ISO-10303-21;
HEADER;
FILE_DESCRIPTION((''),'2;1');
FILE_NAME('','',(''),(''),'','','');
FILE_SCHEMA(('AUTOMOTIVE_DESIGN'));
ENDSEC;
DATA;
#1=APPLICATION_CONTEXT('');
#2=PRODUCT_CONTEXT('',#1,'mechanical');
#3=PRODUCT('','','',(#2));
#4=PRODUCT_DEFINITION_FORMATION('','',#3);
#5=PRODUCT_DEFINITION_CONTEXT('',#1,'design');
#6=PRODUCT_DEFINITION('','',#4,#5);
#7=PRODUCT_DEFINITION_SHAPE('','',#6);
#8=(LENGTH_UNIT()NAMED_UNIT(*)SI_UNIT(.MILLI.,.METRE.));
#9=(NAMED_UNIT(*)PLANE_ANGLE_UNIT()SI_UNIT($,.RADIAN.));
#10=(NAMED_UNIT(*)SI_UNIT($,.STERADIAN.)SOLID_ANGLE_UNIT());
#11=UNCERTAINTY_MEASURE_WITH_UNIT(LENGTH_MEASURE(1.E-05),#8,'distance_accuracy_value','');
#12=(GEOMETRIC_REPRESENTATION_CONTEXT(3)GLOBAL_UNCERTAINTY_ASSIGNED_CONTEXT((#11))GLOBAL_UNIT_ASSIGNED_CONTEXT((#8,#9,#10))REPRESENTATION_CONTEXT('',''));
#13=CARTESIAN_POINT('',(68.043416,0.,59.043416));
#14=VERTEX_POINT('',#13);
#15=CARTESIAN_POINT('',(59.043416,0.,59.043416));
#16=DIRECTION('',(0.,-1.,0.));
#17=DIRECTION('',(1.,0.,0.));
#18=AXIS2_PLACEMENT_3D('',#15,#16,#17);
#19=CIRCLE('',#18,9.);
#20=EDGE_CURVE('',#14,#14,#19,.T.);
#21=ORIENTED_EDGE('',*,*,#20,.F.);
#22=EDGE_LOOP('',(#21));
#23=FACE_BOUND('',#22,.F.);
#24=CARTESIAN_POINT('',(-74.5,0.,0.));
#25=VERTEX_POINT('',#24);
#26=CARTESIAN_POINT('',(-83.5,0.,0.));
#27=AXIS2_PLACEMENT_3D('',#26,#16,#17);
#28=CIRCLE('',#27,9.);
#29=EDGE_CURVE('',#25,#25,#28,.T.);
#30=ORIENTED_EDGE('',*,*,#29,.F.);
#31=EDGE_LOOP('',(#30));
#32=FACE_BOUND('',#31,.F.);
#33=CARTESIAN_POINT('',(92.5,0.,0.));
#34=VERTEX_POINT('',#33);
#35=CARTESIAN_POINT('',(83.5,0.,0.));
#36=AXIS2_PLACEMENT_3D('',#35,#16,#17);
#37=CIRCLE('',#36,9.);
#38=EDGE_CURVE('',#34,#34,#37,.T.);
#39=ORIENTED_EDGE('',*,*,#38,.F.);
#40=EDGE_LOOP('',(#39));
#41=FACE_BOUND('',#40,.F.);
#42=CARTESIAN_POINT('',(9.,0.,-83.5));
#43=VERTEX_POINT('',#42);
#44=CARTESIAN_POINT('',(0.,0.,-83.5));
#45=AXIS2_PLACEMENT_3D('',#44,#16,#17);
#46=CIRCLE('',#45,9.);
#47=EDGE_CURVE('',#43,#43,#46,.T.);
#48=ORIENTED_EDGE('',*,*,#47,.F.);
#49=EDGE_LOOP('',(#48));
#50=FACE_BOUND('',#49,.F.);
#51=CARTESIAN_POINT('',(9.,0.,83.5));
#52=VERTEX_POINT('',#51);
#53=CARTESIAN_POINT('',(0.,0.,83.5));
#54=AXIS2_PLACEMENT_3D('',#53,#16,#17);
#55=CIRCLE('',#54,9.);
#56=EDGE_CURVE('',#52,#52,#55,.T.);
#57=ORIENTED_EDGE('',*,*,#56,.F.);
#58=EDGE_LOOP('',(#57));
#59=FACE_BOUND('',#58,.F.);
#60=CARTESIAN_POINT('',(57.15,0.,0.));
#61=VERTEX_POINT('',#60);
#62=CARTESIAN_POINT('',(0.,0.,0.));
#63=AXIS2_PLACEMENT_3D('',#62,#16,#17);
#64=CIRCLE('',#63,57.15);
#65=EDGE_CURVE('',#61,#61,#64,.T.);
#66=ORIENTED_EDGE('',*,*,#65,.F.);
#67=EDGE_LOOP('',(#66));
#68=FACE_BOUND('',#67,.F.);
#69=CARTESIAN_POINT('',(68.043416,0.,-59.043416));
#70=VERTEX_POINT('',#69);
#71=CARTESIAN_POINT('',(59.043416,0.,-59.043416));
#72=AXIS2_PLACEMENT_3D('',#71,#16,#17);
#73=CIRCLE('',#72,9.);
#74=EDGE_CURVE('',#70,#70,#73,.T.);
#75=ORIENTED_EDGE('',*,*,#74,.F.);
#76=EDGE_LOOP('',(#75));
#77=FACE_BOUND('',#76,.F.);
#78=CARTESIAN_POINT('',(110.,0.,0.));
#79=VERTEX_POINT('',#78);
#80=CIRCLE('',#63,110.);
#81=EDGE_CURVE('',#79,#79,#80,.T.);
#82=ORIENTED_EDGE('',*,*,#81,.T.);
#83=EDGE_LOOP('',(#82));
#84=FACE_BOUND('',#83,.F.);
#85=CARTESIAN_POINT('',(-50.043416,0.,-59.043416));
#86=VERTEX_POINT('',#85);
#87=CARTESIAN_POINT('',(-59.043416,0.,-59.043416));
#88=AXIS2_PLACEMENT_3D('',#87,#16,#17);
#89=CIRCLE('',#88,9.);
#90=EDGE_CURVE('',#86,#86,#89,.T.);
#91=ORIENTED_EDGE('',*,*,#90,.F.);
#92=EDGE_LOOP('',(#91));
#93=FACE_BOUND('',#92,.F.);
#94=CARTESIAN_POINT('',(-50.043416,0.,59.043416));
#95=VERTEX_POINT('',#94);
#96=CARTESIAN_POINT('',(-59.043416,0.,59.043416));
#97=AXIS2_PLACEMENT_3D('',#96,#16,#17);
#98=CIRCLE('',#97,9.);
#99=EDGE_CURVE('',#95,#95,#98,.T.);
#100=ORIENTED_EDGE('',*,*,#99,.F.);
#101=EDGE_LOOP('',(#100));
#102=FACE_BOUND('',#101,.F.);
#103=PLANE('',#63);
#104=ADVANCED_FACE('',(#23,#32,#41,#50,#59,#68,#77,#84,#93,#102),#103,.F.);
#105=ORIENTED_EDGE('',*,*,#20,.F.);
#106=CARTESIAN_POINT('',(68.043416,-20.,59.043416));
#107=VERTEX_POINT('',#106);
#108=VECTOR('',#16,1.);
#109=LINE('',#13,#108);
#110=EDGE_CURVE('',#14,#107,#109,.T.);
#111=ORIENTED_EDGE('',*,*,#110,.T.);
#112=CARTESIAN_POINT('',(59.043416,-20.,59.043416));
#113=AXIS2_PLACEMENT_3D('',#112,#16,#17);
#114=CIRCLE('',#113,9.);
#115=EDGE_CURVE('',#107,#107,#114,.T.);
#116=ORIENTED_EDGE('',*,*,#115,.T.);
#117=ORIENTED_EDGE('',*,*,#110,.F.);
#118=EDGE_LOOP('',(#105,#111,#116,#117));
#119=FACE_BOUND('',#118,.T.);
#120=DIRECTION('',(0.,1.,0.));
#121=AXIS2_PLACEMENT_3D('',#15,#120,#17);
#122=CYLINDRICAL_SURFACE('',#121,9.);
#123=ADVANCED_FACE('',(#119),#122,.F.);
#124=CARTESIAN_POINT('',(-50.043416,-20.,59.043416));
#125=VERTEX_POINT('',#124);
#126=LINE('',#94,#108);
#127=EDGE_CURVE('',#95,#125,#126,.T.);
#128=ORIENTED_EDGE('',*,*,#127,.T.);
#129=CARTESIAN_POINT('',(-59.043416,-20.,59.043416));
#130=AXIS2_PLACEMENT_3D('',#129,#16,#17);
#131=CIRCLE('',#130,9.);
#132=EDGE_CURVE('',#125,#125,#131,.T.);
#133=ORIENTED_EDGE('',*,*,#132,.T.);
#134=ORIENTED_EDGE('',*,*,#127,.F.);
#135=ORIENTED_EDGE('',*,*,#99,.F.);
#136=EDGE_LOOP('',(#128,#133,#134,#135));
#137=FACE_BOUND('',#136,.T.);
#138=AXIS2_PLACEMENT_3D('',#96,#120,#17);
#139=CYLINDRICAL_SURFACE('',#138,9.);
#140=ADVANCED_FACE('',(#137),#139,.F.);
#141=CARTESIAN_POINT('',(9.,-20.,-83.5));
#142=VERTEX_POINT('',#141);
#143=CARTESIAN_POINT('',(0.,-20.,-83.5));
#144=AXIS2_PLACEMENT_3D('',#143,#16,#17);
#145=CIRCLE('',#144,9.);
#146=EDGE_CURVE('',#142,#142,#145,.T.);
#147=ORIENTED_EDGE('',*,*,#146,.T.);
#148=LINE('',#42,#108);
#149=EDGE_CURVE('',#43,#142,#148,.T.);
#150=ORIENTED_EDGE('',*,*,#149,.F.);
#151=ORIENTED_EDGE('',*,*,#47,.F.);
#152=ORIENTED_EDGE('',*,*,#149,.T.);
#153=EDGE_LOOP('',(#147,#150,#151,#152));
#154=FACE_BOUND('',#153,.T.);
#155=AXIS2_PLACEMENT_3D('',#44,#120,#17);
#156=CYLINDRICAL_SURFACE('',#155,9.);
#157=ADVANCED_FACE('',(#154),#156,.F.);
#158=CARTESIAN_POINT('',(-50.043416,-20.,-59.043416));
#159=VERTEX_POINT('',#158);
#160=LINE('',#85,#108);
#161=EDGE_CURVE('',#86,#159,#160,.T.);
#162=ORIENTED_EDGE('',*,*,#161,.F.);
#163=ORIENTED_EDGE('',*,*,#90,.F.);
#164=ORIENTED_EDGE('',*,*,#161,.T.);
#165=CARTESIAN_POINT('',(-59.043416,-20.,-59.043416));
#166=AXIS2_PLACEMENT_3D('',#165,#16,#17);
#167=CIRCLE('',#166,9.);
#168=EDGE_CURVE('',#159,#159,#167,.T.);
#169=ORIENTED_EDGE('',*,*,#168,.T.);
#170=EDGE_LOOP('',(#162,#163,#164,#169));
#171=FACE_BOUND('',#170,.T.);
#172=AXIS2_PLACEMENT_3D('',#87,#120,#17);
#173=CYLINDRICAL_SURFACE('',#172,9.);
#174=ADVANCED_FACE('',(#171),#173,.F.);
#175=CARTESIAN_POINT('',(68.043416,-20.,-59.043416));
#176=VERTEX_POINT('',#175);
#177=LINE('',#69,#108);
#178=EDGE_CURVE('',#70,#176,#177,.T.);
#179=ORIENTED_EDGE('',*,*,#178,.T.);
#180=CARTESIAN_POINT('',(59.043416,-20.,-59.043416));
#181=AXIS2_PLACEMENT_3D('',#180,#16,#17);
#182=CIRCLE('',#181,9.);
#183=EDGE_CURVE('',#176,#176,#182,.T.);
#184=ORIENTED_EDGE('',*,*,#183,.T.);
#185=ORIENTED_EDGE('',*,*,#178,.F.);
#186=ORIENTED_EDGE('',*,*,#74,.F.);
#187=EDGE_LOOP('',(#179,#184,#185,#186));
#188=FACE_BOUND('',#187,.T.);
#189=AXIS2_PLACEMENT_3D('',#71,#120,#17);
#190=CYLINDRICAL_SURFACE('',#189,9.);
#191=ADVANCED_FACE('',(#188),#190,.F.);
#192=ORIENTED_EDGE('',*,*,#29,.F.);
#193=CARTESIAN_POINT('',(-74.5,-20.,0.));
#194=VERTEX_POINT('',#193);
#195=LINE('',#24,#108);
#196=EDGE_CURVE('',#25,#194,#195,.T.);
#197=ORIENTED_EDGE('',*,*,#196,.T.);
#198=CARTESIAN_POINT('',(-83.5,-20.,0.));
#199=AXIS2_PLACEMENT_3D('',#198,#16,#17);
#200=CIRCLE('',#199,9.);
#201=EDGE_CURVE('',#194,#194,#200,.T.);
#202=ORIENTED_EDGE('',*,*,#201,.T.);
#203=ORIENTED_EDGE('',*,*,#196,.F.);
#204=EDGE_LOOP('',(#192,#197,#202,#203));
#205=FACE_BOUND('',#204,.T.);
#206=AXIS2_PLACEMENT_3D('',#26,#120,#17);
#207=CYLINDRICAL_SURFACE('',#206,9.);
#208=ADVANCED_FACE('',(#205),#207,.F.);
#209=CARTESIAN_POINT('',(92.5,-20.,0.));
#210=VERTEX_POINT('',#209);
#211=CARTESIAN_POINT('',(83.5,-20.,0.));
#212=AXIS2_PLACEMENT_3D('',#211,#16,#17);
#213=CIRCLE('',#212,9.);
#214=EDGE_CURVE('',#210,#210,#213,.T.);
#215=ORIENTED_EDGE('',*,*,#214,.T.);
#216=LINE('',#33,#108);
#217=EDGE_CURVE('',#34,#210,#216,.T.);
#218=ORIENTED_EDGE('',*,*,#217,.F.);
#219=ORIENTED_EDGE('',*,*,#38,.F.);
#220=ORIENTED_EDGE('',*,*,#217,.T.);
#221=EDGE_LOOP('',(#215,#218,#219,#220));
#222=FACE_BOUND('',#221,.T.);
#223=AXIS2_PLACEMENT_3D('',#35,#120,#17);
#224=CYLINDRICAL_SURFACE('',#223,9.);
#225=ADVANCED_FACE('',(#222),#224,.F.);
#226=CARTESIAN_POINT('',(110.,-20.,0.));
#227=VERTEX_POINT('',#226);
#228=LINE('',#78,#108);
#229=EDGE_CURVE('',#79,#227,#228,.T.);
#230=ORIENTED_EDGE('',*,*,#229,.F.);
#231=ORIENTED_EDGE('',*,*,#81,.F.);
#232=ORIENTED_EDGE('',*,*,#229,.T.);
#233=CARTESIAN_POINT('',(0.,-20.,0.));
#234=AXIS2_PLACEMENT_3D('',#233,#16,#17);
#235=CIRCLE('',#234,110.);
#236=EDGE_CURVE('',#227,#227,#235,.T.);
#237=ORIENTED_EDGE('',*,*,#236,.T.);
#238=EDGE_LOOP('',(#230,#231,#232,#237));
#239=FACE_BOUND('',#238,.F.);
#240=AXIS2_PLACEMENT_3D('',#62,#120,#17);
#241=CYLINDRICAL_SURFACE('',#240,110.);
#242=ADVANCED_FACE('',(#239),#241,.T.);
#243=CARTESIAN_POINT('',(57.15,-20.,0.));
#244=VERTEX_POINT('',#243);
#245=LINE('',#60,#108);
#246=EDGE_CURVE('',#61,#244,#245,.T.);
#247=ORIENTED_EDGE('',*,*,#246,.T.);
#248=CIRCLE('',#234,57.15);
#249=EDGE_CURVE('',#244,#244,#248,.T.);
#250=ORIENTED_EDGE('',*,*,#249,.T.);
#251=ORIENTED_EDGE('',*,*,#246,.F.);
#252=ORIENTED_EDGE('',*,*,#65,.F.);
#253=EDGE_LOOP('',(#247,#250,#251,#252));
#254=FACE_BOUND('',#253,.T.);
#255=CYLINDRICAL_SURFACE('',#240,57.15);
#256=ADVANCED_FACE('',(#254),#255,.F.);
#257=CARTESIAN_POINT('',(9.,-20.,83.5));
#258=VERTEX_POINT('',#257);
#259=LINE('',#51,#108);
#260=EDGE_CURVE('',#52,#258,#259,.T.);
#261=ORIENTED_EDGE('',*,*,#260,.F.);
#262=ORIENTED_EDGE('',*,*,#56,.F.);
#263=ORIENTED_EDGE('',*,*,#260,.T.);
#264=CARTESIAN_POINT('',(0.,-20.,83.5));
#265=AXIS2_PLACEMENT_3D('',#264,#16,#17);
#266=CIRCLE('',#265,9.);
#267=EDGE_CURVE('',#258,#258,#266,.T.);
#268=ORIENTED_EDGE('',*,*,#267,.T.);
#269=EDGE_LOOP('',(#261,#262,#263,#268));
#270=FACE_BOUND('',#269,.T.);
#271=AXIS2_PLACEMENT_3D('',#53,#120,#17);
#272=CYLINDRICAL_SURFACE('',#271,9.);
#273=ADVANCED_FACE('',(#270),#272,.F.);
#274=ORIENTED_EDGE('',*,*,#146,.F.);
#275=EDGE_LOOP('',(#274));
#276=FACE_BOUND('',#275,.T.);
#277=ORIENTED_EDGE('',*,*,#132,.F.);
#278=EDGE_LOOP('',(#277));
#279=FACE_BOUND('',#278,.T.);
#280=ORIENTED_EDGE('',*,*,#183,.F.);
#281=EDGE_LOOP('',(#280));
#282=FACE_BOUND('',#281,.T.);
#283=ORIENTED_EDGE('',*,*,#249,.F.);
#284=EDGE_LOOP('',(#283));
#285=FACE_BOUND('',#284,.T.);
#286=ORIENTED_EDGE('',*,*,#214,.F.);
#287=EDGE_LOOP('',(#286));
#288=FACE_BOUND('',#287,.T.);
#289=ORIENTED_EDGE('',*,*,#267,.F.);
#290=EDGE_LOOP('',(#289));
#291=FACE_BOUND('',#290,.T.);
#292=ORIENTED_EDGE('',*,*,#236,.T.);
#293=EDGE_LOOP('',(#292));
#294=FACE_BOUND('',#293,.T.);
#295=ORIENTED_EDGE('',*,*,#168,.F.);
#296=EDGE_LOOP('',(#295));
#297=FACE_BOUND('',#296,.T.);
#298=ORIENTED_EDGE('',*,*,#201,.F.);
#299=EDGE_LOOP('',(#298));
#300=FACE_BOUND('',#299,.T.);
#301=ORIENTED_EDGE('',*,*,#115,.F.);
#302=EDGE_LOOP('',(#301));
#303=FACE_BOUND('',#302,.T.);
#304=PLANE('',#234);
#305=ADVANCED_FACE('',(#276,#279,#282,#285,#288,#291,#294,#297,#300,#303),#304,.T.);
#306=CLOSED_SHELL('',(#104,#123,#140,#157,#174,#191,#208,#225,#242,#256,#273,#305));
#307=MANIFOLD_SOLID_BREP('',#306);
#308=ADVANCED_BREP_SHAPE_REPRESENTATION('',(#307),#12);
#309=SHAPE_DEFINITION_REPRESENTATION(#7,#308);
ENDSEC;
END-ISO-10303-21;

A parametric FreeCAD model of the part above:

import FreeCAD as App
import Part
import Sketcher

V = App.Vector

doc = App.newDocument("Part")
params = doc.addObject("Spreadsheet::Sheet", "Params")
for row, (alias, value) in enumerate([
    ("sketch1_diameter", "220 mm"),
    ("sketch1_diameter2", "18 mm"),
    ("sketch1_diameter3", "114.3 mm"),
    ("pad1_length", "20 mm"),
], start=1):
    params.set(f"A{row}", alias)
    params.set(f"B{row}", "=" + value)
    params.setAlias(f"B{row}", alias)

body = doc.addObject("PartDesign::Body", "Body")

# Sketch on XZ plane
sketch1 = body.newObject("Sketcher::SketchObject", "Sketch")
sketch1.AttachmentSupport = (doc.getObject("XZ_Plane"), [""])
sketch1.MapMode = "FlatFace"
sketch1.addGeometry([
    Part.Circle(V(0, 0, 0), V(0, 0, 1), 110),  # 0
    Part.Circle(V(-59, -59, 0), V(0, 0, 1), 9),  # 1
    Part.Circle(V(0, -84, 0), V(0, 0, 1), 9),  # 2
    Part.Circle(V(59, -59, 0), V(0, 0, 1), 9),  # 3
    Part.Circle(V(-84, 0, 0), V(0, 0, 1), 9),  # 4
    Part.Circle(V(-59, 59, 0), V(0, 0, 1), 9),  # 5
    Part.Circle(V(0, 0, 0), V(0, 0, 1), 57),  # 6
    Part.Circle(V(84, 0, 0), V(0, 0, 1), 9),  # 7
    Part.Circle(V(0, 84, 0), V(0, 0, 1), 9),  # 8
    Part.Circle(V(59, 59, 0), V(0, 0, 1), 9),  # 9
], False)
sketch1.addConstraint([
    Sketcher.Constraint("Coincident", 0, 3, -1, 1),
    Sketcher.Constraint("Coincident", 6, 3, -1, 1),
    Sketcher.Constraint("Equal", 1, 2),
    Sketcher.Constraint("Equal", 2, 3),
    Sketcher.Constraint("Equal", 3, 4),
    Sketcher.Constraint("Equal", 4, 5),
    Sketcher.Constraint("Equal", 5, 7),
    Sketcher.Constraint("Equal", 7, 8),
    Sketcher.Constraint("Equal", 8, 9),
    Sketcher.Constraint("Symmetric", 3, 3, 5, 3, -1, 1),
    Sketcher.Constraint("Symmetric", 4, 3, 7, 3, -1, 1),
    Sketcher.Constraint("Symmetric", 2, 3, 8, 3, -1, 1),
    Sketcher.Constraint("Symmetric", 1, 3, 9, 3, -1, 1),
    Sketcher.Constraint("Symmetric", 1, 3, 3, 3, -2),
    Sketcher.Constraint("PointOnObject", 2, 3, -2),
    Sketcher.Constraint("PointOnObject", 4, 3, -1),
    Sketcher.Constraint("Diameter", 0, 220.0),
    Sketcher.Constraint("Diameter", 1, 18.0),
    Sketcher.Constraint("Diameter", 6, 114.3),
    Sketcher.Constraint("DistanceY", 2, 3, -1, 1, 83.5),
    Sketcher.Constraint("DistanceX", 4, 3, -1, 1, 83.5),
    Sketcher.Constraint("DistanceX", 1, 3, 3, 3, 118.086832),
    Sketcher.Constraint("DistanceY", 1, 3, 5, 3, 118.086832),
])
sketch1.setExpression("Constraints[16]", "Params.sketch1_diameter")
sketch1.setExpression("Constraints[17]", "Params.sketch1_diameter2")
sketch1.setExpression("Constraints[18]", "Params.sketch1_diameter3")
pad1 = body.newObject("PartDesign::Pad", "Pad")
pad1.Profile = sketch1
pad1.setExpression("Length", "Params.pad1_length")

doc.recompute()
